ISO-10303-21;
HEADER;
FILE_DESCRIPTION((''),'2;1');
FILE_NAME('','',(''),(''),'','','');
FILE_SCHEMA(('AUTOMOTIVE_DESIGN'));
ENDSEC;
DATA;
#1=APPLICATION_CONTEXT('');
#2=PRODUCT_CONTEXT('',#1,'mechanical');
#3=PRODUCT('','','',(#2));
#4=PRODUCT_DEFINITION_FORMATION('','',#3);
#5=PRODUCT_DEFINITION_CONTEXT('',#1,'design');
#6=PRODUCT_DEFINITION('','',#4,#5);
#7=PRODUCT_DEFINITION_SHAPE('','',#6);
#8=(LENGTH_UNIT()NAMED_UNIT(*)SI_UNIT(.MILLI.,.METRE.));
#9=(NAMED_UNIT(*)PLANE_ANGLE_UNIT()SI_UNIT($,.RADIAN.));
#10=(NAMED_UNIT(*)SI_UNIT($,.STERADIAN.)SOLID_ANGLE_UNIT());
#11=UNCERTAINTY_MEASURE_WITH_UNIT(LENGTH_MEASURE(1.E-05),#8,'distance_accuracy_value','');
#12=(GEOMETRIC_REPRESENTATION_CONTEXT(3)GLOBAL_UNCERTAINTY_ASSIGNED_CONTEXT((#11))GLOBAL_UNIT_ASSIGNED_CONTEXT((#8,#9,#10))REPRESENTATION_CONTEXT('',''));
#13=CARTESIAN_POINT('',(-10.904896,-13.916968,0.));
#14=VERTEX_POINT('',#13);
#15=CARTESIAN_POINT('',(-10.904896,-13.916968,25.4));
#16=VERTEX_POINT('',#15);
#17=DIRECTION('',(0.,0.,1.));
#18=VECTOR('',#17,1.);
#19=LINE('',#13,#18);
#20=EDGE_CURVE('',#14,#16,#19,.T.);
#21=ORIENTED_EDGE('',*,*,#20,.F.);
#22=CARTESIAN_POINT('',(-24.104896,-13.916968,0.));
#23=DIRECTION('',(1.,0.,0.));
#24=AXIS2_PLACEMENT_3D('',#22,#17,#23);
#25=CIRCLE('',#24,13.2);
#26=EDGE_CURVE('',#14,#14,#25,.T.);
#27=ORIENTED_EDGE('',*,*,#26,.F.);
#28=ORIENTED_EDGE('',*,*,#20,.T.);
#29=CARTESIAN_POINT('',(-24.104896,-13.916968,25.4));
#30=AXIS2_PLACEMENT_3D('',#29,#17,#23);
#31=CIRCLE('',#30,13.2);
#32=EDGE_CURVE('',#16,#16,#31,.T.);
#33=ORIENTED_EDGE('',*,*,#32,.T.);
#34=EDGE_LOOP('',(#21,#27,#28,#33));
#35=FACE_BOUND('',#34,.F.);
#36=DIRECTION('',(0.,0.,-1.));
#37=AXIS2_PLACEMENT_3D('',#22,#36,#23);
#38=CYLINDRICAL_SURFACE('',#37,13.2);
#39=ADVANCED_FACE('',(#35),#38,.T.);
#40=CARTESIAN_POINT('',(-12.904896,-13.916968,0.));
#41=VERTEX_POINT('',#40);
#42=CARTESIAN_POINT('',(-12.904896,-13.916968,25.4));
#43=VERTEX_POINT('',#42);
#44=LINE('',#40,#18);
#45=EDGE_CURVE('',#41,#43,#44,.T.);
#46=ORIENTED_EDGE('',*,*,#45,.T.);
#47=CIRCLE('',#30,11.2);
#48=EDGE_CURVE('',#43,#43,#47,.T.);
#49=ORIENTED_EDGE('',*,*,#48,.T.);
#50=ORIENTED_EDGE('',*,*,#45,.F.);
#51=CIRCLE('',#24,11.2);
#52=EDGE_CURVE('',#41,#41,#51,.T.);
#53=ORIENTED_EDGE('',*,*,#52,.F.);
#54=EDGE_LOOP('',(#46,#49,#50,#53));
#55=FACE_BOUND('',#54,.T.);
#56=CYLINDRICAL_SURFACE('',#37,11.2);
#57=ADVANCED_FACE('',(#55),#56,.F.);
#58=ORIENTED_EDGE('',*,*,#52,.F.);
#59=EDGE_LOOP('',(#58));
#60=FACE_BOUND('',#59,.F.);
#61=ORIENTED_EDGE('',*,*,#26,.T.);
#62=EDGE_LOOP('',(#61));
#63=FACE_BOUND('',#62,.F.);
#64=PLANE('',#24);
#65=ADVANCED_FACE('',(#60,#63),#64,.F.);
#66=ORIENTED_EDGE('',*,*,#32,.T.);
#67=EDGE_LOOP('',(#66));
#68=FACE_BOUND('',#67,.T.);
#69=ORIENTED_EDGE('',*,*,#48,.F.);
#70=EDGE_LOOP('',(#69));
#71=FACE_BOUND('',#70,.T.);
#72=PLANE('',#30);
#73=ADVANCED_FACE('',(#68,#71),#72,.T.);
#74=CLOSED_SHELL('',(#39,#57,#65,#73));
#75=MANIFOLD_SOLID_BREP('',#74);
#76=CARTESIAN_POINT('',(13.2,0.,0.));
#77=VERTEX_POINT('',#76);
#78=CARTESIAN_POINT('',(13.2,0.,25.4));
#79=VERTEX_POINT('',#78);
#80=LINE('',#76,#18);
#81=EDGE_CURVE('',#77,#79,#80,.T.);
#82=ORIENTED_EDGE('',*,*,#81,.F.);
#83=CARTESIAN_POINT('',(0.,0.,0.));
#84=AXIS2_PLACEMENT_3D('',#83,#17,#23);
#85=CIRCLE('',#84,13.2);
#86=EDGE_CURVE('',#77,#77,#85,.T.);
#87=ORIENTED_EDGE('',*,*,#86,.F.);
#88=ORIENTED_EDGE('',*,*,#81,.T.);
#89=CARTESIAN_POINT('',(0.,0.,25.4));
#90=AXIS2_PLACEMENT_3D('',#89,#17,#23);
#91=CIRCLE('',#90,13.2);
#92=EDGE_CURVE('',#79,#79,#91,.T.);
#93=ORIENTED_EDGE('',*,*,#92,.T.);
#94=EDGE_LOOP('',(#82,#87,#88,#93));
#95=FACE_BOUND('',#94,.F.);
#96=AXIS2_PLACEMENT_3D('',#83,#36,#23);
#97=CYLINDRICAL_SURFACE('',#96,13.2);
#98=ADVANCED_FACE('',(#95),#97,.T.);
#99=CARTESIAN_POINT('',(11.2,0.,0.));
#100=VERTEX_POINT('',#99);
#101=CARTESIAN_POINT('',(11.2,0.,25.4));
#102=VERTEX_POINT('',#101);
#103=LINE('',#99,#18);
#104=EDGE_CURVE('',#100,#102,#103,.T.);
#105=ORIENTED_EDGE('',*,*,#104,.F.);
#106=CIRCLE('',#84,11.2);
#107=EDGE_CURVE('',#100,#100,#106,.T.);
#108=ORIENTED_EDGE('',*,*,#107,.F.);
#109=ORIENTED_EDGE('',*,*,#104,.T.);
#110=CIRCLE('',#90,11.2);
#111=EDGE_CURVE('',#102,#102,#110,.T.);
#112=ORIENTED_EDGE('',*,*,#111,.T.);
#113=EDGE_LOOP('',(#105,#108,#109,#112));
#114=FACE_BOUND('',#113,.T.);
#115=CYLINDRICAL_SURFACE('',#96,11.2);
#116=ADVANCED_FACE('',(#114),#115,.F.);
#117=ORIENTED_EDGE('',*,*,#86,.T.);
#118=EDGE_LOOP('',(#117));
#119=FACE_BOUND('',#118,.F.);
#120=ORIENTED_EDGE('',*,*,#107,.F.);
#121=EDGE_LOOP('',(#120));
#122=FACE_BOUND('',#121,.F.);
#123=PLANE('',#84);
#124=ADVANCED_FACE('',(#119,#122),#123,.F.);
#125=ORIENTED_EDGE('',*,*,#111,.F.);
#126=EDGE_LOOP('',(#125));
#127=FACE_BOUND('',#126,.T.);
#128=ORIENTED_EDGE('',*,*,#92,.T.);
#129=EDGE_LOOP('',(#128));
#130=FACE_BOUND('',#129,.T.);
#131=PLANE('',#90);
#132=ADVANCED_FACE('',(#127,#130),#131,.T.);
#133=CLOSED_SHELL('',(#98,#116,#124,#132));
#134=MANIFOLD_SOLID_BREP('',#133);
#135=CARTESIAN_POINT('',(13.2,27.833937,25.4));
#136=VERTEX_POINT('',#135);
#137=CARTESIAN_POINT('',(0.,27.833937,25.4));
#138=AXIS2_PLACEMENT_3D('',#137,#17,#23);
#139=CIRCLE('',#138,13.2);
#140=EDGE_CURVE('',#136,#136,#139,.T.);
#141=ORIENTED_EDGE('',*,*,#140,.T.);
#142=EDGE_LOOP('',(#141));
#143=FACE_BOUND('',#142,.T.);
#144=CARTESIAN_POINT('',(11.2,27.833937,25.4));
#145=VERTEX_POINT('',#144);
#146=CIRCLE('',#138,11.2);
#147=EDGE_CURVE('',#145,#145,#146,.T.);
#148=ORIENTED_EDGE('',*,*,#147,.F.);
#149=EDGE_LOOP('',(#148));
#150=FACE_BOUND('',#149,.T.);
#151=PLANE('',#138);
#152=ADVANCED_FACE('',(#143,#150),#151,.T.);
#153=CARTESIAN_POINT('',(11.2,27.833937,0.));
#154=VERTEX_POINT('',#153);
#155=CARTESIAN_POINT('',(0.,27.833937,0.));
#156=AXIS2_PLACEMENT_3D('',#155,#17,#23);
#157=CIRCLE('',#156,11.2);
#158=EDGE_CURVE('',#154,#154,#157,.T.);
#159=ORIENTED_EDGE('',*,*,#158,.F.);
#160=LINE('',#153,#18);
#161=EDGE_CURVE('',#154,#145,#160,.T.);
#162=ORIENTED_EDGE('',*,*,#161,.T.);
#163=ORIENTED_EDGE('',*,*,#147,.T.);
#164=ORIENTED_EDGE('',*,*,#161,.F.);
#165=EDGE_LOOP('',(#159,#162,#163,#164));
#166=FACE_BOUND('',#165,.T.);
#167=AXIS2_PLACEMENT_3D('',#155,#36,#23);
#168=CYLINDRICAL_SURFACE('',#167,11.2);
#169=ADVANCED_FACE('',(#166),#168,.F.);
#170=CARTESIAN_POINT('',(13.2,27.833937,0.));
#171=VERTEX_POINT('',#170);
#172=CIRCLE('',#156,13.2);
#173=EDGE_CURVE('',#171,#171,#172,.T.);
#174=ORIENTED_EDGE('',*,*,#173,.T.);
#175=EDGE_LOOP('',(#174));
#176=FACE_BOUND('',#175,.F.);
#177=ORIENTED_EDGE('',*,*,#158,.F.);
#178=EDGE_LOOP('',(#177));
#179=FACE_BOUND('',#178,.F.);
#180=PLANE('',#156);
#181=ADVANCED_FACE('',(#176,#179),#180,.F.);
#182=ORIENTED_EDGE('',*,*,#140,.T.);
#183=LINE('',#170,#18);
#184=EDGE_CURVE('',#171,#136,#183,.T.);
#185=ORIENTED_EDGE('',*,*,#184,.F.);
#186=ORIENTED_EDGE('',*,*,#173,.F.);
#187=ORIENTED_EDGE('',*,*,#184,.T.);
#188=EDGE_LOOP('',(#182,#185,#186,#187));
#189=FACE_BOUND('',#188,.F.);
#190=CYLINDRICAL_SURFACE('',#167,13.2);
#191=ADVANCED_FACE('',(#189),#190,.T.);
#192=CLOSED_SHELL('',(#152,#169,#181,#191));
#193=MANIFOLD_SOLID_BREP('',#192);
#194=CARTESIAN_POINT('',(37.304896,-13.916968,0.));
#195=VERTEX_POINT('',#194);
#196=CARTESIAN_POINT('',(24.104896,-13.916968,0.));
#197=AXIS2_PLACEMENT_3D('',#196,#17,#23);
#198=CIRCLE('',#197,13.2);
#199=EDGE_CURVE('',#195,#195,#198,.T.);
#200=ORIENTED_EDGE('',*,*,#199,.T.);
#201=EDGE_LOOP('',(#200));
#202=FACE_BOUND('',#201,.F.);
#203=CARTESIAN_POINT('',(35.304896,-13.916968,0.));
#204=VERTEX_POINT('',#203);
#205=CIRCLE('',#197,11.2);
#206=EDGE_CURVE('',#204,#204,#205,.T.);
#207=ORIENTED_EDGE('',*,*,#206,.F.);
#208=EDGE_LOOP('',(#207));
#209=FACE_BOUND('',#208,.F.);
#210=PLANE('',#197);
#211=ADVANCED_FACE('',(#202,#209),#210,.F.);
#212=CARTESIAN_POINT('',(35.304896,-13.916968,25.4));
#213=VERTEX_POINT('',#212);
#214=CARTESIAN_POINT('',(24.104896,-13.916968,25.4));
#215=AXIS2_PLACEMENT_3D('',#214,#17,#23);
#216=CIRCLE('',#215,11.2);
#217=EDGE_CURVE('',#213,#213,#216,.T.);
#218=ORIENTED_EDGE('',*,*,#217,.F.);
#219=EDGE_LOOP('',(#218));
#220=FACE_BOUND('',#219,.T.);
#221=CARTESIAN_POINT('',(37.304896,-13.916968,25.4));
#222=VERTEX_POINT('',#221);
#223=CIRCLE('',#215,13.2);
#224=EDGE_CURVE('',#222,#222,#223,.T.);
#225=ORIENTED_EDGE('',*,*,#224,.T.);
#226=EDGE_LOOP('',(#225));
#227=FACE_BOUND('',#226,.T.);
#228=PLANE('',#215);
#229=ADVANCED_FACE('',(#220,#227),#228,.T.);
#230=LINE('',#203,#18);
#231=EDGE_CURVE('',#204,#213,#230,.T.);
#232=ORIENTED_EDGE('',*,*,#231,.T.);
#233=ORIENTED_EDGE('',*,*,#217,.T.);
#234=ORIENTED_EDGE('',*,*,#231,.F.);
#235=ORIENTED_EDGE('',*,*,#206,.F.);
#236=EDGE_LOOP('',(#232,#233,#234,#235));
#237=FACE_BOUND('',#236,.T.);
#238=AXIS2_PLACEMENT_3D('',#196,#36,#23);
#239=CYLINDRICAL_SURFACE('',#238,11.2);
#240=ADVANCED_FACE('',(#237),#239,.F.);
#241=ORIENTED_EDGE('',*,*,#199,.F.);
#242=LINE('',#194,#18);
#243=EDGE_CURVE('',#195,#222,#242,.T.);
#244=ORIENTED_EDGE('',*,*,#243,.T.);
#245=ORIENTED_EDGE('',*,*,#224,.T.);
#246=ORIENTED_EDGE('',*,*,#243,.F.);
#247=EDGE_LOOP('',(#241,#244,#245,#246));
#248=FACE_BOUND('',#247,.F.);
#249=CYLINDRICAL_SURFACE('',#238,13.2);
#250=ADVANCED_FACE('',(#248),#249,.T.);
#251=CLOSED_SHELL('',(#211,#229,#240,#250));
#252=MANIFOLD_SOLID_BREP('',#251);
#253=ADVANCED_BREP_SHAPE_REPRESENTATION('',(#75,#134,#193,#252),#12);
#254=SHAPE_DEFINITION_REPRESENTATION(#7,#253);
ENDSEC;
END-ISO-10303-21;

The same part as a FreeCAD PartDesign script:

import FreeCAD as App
import Part
import Sketcher

V = App.Vector
Q = App.Units.Quantity

doc = App.newDocument("Part")
body = doc.addObject("PartDesign::Body", "Body")
body.AllowCompound = True

sketch1 = doc.addObject("Sketcher::SketchObject", "Sketch")
body.addObject(sketch1)
sketch1.AttachmentSupport = (doc.XY_Plane, [""])
sketch1.MapMode = "FlatFace"
sketch1.addGeometry([
    Part.Circle(V(0, 0, 0), V(0, 0, 1), 13.2),
    Part.Circle(V(0, 0, 0), V(0, 0, 1), 11.2),
    Part.Circle(V(0, 27.833937, 0), V(0, 0, 1), 13.2),
    Part.Circle(V(0, 27.833937, 0), V(0, 0, 1), 11.2),
    Part.Circle(V(-24.104896, -13.916968, 0), V(0, 0, 1), 13.2),
    Part.Circle(V(-24.104896, -13.916968, 0), V(0, 0, 1), 11.2),
    Part.Circle(V(24.104896, -13.916968, 0), V(0, 0, 1), 13.2),
    Part.Circle(V(24.104896, -13.916968, 0), V(0, 0, 1), 11.2),
], False)
sketch1.addConstraint([
    Sketcher.Constraint("Coincident", 0, 3, -1, 1),
    Sketcher.Constraint("Coincident", 1, 3, -1, 1),
    Sketcher.Constraint("Coincident", 3, 3, 2, 3),
    Sketcher.Constraint("Coincident", 5, 3, 4, 3),
    Sketcher.Constraint("Coincident", 7, 3, 6, 3),
    Sketcher.Constraint("Equal", 0, 2),
    Sketcher.Constraint("Equal", 1, 3),
    Sketcher.Constraint("Equal", 2, 4),
    Sketcher.Constraint("Equal", 3, 5),
    Sketcher.Constraint("Equal", 4, 6),
    Sketcher.Constraint("Equal", 5, 7),
    Sketcher.Constraint("Symmetric", 4, 3, 6, 3, -2),
    Sketcher.Constraint("PointOnObject", 2, 3, -2),
    Sketcher.Constraint("Diameter", 0, Q("26.4 mm")),
    Sketcher.Constraint("Diameter", 1, Q("22.4 mm")),
    Sketcher.Constraint("DistanceY", 4, 3, -1, 1, Q("13.916968 mm")),
    Sketcher.Constraint("DistanceY", -1, 1, 2, 3, Q("27.833937 mm")),
    Sketcher.Constraint("DistanceX", 4, 3, -1, 1, Q("24.104896 mm")),
])
pad1 = doc.addObject("PartDesign::Pad", "Pad")
body.addObject(pad1)
pad1.Profile = sketch1
pad1.Length = 25.4

doc.recompute()
